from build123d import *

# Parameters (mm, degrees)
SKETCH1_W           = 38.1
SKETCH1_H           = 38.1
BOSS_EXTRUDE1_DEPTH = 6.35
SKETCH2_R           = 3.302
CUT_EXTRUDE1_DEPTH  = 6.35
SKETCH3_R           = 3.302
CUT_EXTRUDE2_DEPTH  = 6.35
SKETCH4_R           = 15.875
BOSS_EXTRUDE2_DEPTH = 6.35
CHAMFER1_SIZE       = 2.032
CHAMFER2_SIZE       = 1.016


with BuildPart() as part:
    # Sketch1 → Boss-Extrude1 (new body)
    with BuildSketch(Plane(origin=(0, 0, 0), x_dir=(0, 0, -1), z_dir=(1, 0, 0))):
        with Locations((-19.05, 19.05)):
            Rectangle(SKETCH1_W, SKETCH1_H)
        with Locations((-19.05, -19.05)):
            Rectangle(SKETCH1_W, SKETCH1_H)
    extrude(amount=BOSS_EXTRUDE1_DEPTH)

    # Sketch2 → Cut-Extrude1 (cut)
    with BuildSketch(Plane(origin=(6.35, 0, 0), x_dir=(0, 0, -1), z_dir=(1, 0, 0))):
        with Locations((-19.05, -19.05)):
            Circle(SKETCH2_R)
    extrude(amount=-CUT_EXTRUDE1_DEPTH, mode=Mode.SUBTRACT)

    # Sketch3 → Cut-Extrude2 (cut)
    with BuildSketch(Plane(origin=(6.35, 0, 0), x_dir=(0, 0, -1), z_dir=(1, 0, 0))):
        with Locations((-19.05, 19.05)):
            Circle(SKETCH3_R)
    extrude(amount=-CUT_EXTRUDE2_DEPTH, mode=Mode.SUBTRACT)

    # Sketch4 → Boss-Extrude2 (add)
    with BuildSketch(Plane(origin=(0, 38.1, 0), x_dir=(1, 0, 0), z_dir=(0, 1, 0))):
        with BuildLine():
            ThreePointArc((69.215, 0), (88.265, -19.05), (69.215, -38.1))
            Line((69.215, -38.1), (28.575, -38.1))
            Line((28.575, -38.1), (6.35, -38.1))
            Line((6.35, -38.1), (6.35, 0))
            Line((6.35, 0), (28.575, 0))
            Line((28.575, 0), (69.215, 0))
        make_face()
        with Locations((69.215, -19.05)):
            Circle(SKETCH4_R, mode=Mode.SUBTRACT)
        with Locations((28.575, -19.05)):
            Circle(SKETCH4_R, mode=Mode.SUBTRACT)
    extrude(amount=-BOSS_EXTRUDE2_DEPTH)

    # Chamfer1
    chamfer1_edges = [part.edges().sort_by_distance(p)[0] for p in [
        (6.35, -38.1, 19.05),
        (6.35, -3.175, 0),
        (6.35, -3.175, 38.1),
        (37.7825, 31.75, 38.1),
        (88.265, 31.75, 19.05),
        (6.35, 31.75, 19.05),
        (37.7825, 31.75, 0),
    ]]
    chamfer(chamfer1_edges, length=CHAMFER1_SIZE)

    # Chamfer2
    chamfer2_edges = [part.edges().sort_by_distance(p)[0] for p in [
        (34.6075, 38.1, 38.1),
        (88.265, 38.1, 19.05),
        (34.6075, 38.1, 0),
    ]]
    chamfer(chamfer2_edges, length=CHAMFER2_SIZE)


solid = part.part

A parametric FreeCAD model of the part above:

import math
import FreeCAD as App
import Part
import Sketcher
Q = App.Units.Quantity


def edges_at(feature, points):
    """Names of the edges that pass closest to the given points."""
    edges = feature.Shape.Edges
    near = lambda p: min(range(len(edges)), key=lambda i: edges[i].distToShape(Part.Vertex(*p))[0])
    return sorted({f"Edge{near(p) + 1}" for p in points})

doc = App.newDocument("Part")
body = doc.addObject("PartDesign::Body", "Body")

# Sketch on YZ plane
sketch1 = body.newObject("Sketcher::SketchObject", "Sketch")
sketch1.AttachmentSupport = (doc.getObject("YZ_Plane"), [""])
sketch1.MapMode = "FlatFace"
sketch1.addGeometry(Part.LineSegment(App.Vector(38.1, 38.1, 0), App.Vector(-38.1, 38.1, 0)), False)
sketch1.addGeometry(Part.LineSegment(App.Vector(-38.1, 38.1, 0), App.Vector(-38.1, 0, 0)), False)
sketch1.addGeometry(Part.LineSegment(App.Vector(-38.1, 0, 0), App.Vector(38.1, 0, 0)), False)
sketch1.addGeometry(Part.LineSegment(App.Vector(38.1, 0, 0), App.Vector(38.1, 38.1, 0)), False)
sketch1.addConstraint(Sketcher.Constraint("Coincident", 0, 2, 1, 1))
sketch1.addConstraint(Sketcher.Constraint("Coincident", 1, 2, 2, 1))
sketch1.addConstraint(Sketcher.Constraint("Coincident", 2, 2, 3, 1))
sketch1.addConstraint(Sketcher.Constraint("Coincident", 3, 2, 0, 1))
sketch1.addConstraint(Sketcher.Constraint("Horizontal", 0))
sketch1.addConstraint(Sketcher.Constraint("Vertical", 1))
sketch1.addConstraint(Sketcher.Constraint("Horizontal", 2))
sketch1.addConstraint(Sketcher.Constraint("Vertical", 3))
sketch1.addConstraint(Sketcher.Constraint("Symmetric", 1, 2, 2, 2, -1, 1))
sketch1.addConstraint(Sketcher.Constraint("DistanceX", 0, 2, 0, 1, Q("3 in")))
sketch1.addConstraint(Sketcher.Constraint("DistanceY", 1, 2, 1, 1, Q("1.5 in")))
pad1 = body.newObject("PartDesign::Pad", "Pad")
pad1.Profile = sketch1
pad1.Length = Q("0.25 in")

# Sketch on YZ plane
sketch2 = body.newObject("Sketcher::SketchObject", "Sketch001")
sketch2.AttachmentSupport = (doc.getObject("YZ_Plane"), [""])
sketch2.MapMode = "FlatFace"
sketch2.AttachmentOffset = App.Placement(App.Vector(0, 0, 0.25 * 25.4), App.Rotation())
sketch2.addGeometry(Part.Circle(App.Vector(-19.05, 19.05, 0), App.Vector(0, 0, 1), 3.302), False)
sketch2.addConstraint(Sketcher.Constraint("Diameter", 0, Q("0.26 in")))
sketch2.addConstraint(Sketcher.Constraint("DistanceX", 0, 3, -1, 1, Q("0.75 in")))
sketch2.addConstraint(Sketcher.Constraint("DistanceY", -1, 1, 0, 3, Q("0.75 in")))
pocket1 = body.newObject("PartDesign::Pocket", "Pocket")
pocket1.Profile = sketch2
pocket1.Length = Q("0.25 in")

# Sketch on YZ plane
sketch3 = body.newObject("Sketcher::SketchObject", "Sketch002")
sketch3.AttachmentSupport = (doc.getObject("YZ_Plane"), [""])
sketch3.MapMode = "FlatFace"
sketch3.AttachmentOffset = App.Placement(App.Vector(0, 0, 0.25 * 25.4), App.Rotation())
sketch3.addGeometry(Part.Circle(App.Vector(19.05, 19.05, 0), App.Vector(0, 0, 1), 3.302), False)
sketch3.addConstraint(Sketcher.Constraint("Diameter", 0, Q("0.26 in")))
sketch3.addConstraint(Sketcher.Constraint("DistanceX", -1, 1, 0, 3, Q("0.75 in")))
sketch3.addConstraint(Sketcher.Constraint("DistanceY", -1, 1, 0, 3, Q("0.75 in")))
pocket2 = body.newObject("PartDesign::Pocket", "Pocket001")
pocket2.Profile = sketch3
pocket2.Length = Q("0.25 in")

# Sketch on XZ plane
sketch4 = body.newObject("Sketcher::SketchObject", "Sketch003")
sketch4.AttachmentSupport = (doc.getObject("XZ_Plane"), [""])
sketch4.MapMode = "FlatFace"
sketch4.AttachmentOffset = App.Placement(App.Vector(0, 0, -1.5 * 25.4), App.Rotation())
sketch4.addGeometry(Part.ArcOfCircle(Part.Circle(App.Vector(69.215, 19.05, 0), App.Vector(0, 0, 1), 19.05), math.radians(-90), math.radians(90)), False)
sketch4.addGeometry(Part.LineSegment(App.Vector(69.215, 0, 0), App.Vector(6.35, 0, 0)), False)
sketch4.addGeometry(Part.LineSegment(App.Vector(6.35, 0, 0), App.Vector(6.35, 38.1, 0)), False)
sketch4.addGeometry(Part.LineSegment(App.Vector(6.35, 38.1, 0), App.Vector(69.215, 38.1, 0)), False)
sketch4.addGeometry(Part.Circle(App.Vector(69.215, 19.05, 0), App.Vector(0, 0, 1), 15.875), False)
sketch4.addGeometry(Part.Circle(App.Vector(28.575, 19.05, 0), App.Vector(0, 0, 1), 15.875), False)
sketch4.addConstraint(Sketcher.Constraint("Tangent", 0, 1, 1, 1))
sketch4.addConstraint(Sketcher.Constraint("Coincident", 1, 2, 2, 1))
sketch4.addConstraint(Sketcher.Constraint("Coincident", 2, 2, 3, 1))
sketch4.addConstraint(Sketcher.Constraint("Tangent", 3, 2, 0, 2))
sketch4.addConstraint(Sketcher.Constraint("Horizontal", 1))
sketch4.addConstraint(Sketcher.Constraint("Vertical", 2))
sketch4.addConstraint(Sketcher.Constraint("Horizontal", 3))
sketch4.addConstraint(Sketcher.Constraint("Coincident", 4, 3, 0, 3))
sketch4.addConstraint(Sketcher.Constraint("Equal", 4, 5))
sketch4.addConstraint(Sketcher.Constraint("PointOnObject", 0, 1, -1))
sketch4.addConstraint(Sketcher.Constraint("Horizontal", 4, 3, 5, 3))
sketch4.addConstraint(Sketcher.Constraint("Diameter", 4, Q("1.25 in")))
sketch4.addConstraint(Sketcher.Constraint("Radius", 0, Q("0.75 in")))
sketch4.addConstraint(Sketcher.Constraint("DistanceX", 5, 3, 0, 3, Q("1.6 in")))
sketch4.addConstraint(Sketcher.Constraint("DistanceX", 1, 2, 1, 1, Q("2.475 in")))
sketch4.addConstraint(Sketcher.Constraint("DistanceX", -1, 1, 1, 2, Q("0.25 in")))
pad2 = body.newObject("PartDesign::Pad", "Pad001")
pad2.Profile = sketch4
pad2.Length = Q("0.25 in")
doc.recompute()

chamfer = body.newObject("PartDesign::Chamfer", "Chamfer")
chamfer.Base = (pad2, edges_at(pad2, [
    (6.35, -38.1, 19.05),
    (6.35, -3.175, 0),
    (6.35, -3.175, 38.1),
    (37.782, 31.75, 38.1),
    (88.265, 31.75, 19.05),
    (6.35, 31.75, 19.05),
    (37.782, 31.75, 0),
]))
chamfer.Size = Q("0.08 in")
doc.recompute()

chamfer2 = body.newObject("PartDesign::Chamfer", "Chamfer001")
chamfer2.Base = (chamfer, edges_at(chamfer, [(34.608, 38.1, 38.1), (88.265, 38.1, 19.05), (34.608, 38.1, 0)]))
chamfer2.Size = Q("0.04 in")

doc.recompute()
